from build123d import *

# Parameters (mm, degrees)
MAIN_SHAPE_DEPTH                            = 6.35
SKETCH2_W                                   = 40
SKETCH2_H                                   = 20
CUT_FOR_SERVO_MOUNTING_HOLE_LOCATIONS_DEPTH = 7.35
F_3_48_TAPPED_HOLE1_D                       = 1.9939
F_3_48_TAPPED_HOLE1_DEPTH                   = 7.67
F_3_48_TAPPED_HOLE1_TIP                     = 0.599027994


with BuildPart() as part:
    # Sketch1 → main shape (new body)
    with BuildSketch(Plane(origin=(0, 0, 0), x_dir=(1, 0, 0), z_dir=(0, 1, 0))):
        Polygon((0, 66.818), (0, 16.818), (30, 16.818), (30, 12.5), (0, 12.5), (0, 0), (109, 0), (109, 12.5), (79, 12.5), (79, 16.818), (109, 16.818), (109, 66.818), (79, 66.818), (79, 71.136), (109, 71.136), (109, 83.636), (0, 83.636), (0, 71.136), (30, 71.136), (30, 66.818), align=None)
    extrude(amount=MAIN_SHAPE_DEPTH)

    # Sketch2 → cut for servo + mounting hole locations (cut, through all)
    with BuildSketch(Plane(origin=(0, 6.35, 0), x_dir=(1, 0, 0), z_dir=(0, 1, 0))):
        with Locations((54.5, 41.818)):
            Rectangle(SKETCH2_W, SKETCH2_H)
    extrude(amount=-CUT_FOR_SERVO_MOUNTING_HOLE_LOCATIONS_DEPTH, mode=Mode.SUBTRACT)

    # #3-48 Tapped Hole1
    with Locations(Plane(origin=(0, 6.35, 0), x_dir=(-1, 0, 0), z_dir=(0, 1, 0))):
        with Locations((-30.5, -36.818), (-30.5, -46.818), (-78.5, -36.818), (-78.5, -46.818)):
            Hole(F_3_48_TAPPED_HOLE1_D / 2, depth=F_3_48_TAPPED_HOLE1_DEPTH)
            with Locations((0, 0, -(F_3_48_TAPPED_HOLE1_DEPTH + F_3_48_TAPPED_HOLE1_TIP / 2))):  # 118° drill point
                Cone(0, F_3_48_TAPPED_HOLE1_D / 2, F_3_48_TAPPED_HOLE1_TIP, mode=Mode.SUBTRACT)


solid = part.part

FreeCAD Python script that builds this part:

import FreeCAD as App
import Part
import Sketcher

doc = App.newDocument("Part")
params = doc.addObject("Spreadsheet::Sheet", "Params")
for row, (alias, value) in enumerate([
    ("sketch1_width", "30 mm"),
    ("sketch1_width2", "109 mm"),
    ("sketch1_height", "50 mm"),
    ("sketch1_height2", "12.5 mm"),
    ("pad1_length", "6.35 mm"),
    ("sketch2_width", "40 mm"),
    ("sketch2_height", "20 mm"),
    ("hole_diameter", "1.9939 mm"),
    ("hole_depth", "7.67 mm"),
], start=1):
    params.set(f"A{row}", alias)
    params.set(f"B{row}", "=" + value)
    params.setAlias(f"B{row}", alias)

body = doc.addObject("PartDesign::Body", "Body")

sketch1 = doc.addObject("Sketcher::SketchObject", "Sketch")
body.addObject(sketch1)
sketch1.AttachmentSupport = (doc.XZ_Plane, [""])
sketch1.MapMode = "FlatFace"
sketch1.addGeometry(Part.LineSegment(App.Vector(0, -66.8, 0), App.Vector(0, -16.8, 0)), False)
sketch1.addGeometry(Part.LineSegment(App.Vector(0, -16.8, 0), App.Vector(30, -16.8, 0)), False)
sketch1.addGeometry(Part.LineSegment(App.Vector(30, -16.8, 0), App.Vector(30, -12.5, 0)), False)
sketch1.addGeometry(Part.LineSegment(App.Vector(30, -12.5, 0), App.Vector(0, -12.5, 0)), False)
sketch1.addGeometry(Part.LineSegment(App.Vector(0, -12.5, 0), App.Vector(0, 0, 0)), False)
sketch1.addGeometry(Part.LineSegment(App.Vector(0, 0, 0), App.Vector(109, 0, 0)), False)
sketch1.addGeometry(Part.LineSegment(App.Vector(109, 0, 0), App.Vector(109, -12.5, 0)), False)
sketch1.addGeometry(Part.LineSegment(App.Vector(109, -12.5, 0), App.Vector(79, -12.5, 0)), False)
sketch1.addGeometry(Part.LineSegment(App.Vector(79, -12.5, 0), App.Vector(79, -16.8, 0)), False)
sketch1.addGeometry(Part.LineSegment(App.Vector(79, -16.8, 0), App.Vector(109, -16.8, 0)), False)
sketch1.addGeometry(Part.LineSegment(App.Vector(109, -16.8, 0), App.Vector(109, -66.8, 0)), False)
sketch1.addGeometry(Part.LineSegment(App.Vector(109, -66.8, 0), App.Vector(79, -66.8, 0)), False)
sketch1.addGeometry(Part.LineSegment(App.Vector(79, -66.8, 0), App.Vector(79, -71.1, 0)), False)
sketch1.addGeometry(Part.LineSegment(App.Vector(79, -71.1, 0), App.Vector(109, -71.1, 0)), False)
sketch1.addGeometry(Part.LineSegment(App.Vector(109, -71.1, 0), App.Vector(109, -83.6, 0)), False)
sketch1.addGeometry(Part.LineSegment(App.Vector(109, -83.6, 0), App.Vector(0, -83.6, 0)), False)
sketch1.addGeometry(Part.LineSegment(App.Vector(0, -83.6, 0), App.Vector(0, -71.1, 0)), False)
sketch1.addGeometry(Part.LineSegment(App.Vector(0, -71.1, 0), App.Vector(30, -71.1, 0)), False)
sketch1.addGeometry(Part.LineSegment(App.Vector(30, -71.1, 0), App.Vector(30, -66.8, 0)), False)
sketch1.addGeometry(Part.LineSegment(App.Vector(30, -66.8, 0), App.Vector(0, -66.8, 0)), False)
sketch1.addConstraint(Sketcher.Constraint("Coincident", 0, 2, 1, 1))
sketch1.addConstraint(Sketcher.Constraint("Coincident", 1, 2, 2, 1))
sketch1.addConstraint(Sketcher.Constraint("Coincident", 2, 2, 3, 1))
sketch1.addConstraint(Sketcher.Constraint("Coincident", 3, 2, 4, 1))
sketch1.addConstraint(Sketcher.Constraint("Coincident", 4, 2, 5, 1))
sketch1.addConstraint(Sketcher.Constraint("Coincident", 5, 2, 6, 1))
sketch1.addConstraint(Sketcher.Constraint("Coincident", 6, 2, 7, 1))
sketch1.addConstraint(Sketcher.Constraint("Coincident", 7, 2, 8, 1))
sketch1.addConstraint(Sketcher.Constraint("Coincident", 8, 2, 9, 1))
sketch1.addConstraint(Sketcher.Constraint("Coincident", 9, 2, 10, 1))
sketch1.addConstraint(Sketcher.Constraint("Coincident", 10, 2, 11, 1))
sketch1.addConstraint(Sketcher.Constraint("Coincident", 11, 2, 12, 1))
sketch1.addConstraint(Sketcher.Constraint("Coincident", 12, 2, 13, 1))
sketch1.addConstraint(Sketcher.Constraint("Coincident", 13, 2, 14, 1))
sketch1.addConstraint(Sketcher.Constraint("Coincident", 14, 2, 15, 1))
sketch1.addConstraint(Sketcher.Constraint("Coincident", 15, 2, 16, 1))
sketch1.addConstraint(Sketcher.Constraint("Coincident", 16, 2, 17, 1))
sketch1.addConstraint(Sketcher.Constraint("Coincident", 17, 2, 18, 1))
sketch1.addConstraint(Sketcher.Constraint("Coincident", 18, 2, 19, 1))
sketch1.addConstraint(Sketcher.Constraint("Coincident", 19, 2, 0, 1))
sketch1.addConstraint(Sketcher.Constraint("Vertical", 0))
sketch1.addConstraint(Sketcher.Constraint("Horizontal", 1))
sketch1.addConstraint(Sketcher.Constraint("Vertical", 2))
sketch1.addConstraint(Sketcher.Constraint("Horizontal", 3))
sketch1.addConstraint(Sketcher.Constraint("Vertical", 4))
sketch1.addConstraint(Sketcher.Constraint("Horizontal", 5))
sketch1.addConstraint(Sketcher.Constraint("Vertical", 6))
sketch1.addConstraint(Sketcher.Constraint("Horizontal", 7))
sketch1.addConstraint(Sketcher.Constraint("Vertical", 8))
sketch1.addConstraint(Sketcher.Constraint("Horizontal", 9))
sketch1.addConstraint(Sketcher.Constraint("Vertical", 10))
sketch1.addConstraint(Sketcher.Constraint("Horizontal", 11))
sketch1.addConstraint(Sketcher.Constraint("Vertical", 12))
sketch1.addConstraint(Sketcher.Constraint("Horizontal", 13))
sketch1.addConstraint(Sketcher.Constraint("Vertical", 14))
sketch1.addConstraint(Sketcher.Constraint("Horizontal", 15))
sketch1.addConstraint(Sketcher.Constraint("Vertical", 16))
sketch1.addConstraint(Sketcher.Constraint("Horizontal", 17))
sketch1.addConstraint(Sketcher.Constraint("Vertical", 18))
sketch1.addConstraint(Sketcher.Constraint("Horizontal", 19))
sketch1.addConstraint(Sketcher.Constraint("Coincident", 4, 2, -1, 1))
sketch1.addConstraint(Sketcher.Constraint("PointOnObject", 0, 2, -2))
sketch1.addConstraint(Sketcher.Constraint("PointOnObject", 15, 2, -2))
sketch1.addConstraint(Sketcher.Constraint("Horizontal", 3, 2, 6, 2))
sketch1.addConstraint(Sketcher.Constraint("Horizontal", 1, 2, 8, 2))
sketch1.addConstraint(Sketcher.Constraint("Horizontal", 13, 2, 16, 2))
sketch1.addConstraint(Sketcher.Constraint("Horizontal", 11, 2, 18, 2))
sketch1.addConstraint(Sketcher.Constraint("Vertical", 6, 2, 9, 2))
sketch1.addConstraint(Sketcher.Constraint("Vertical", 8, 2, 11, 2))
sketch1.addConstraint(Sketcher.Constraint("Vertical", 10, 2, 13, 2))
sketch1.addConstraint(Sketcher.Constraint("Vertical", 2, 2, 17, 2))
sketch1.addConstraint(Sketcher.Constraint("Equal", 3, 7))
sketch1.addConstraint(Sketcher.Constraint("Equal", 8, 12))
sketch1.addConstraint(Sketcher.Constraint("Equal", 6, 14))
sketch1.addConstraint(Sketcher.Constraint("DistanceX", 1, 1, 1, 2, 30.0))
sketch1.addConstraint(Sketcher.Constraint("DistanceX", 5, 1, 5, 2, 109.0))
sketch1.addConstraint(Sketcher.Constraint("DistanceY", 0, 1, 0, 2, 50.0))
sketch1.addConstraint(Sketcher.Constraint("DistanceY", 4, 1, 4, 2, 12.5))
sketch1.addConstraint(Sketcher.Constraint("DistanceY", 2, 1, 2, 2, 4.318))
sketch1.setExpression("Constraints[54]", "Params.sketch1_width")
sketch1.setExpression("Constraints[55]", "Params.sketch1_width2")
sketch1.setExpression("Constraints[56]", "Params.sketch1_height")
sketch1.setExpression("Constraints[57]", "Params.sketch1_height2")
pad1 = doc.addObject("PartDesign::Pad", "Pad")
body.addObject(pad1)
pad1.Profile = sketch1
pad1.setExpression("Length", "Params.pad1_length")
pad1.Reversed = True

sketch2 = doc.addObject("Sketcher::SketchObject", "Sketch001")
body.addObject(sketch2)
sketch2.AttachmentSupport = (doc.XZ_Plane, [""])
sketch2.MapMode = "FlatFace"
sketch2.AttachmentOffset = App.Placement(App.Vector(0, 0, -6.35), App.Rotation())
sketch2.addGeometry(Part.LineSegment(App.Vector(34, -52, 0), App.Vector(34, -32, 0)), False)
sketch2.addGeometry(Part.LineSegment(App.Vector(34, -32, 0), App.Vector(74, -32, 0)), False)
sketch2.addGeometry(Part.LineSegment(App.Vector(74, -32, 0), App.Vector(74, -52, 0)), False)
sketch2.addGeometry(Part.LineSegment(App.Vector(74, -52, 0), App.Vector(34, -52, 0)), False)
sketch2.addConstraint(Sketcher.Constraint("Coincident", 0, 2, 1, 1))
sketch2.addConstraint(Sketcher.Constraint("Coincident", 1, 2, 2, 1))
sketch2.addConstraint(Sketcher.Constraint("Coincident", 2, 2, 3, 1))
sketch2.addConstraint(Sketcher.Constraint("Coincident", 3, 2, 0, 1))
sketch2.addConstraint(Sketcher.Constraint("Vertical", 0))
sketch2.addConstraint(Sketcher.Constraint("Horizontal", 1))
sketch2.addConstraint(Sketcher.Constraint("Vertical", 2))
sketch2.addConstraint(Sketcher.Constraint("Horizontal", 3))
sketch2.addConstraint(Sketcher.Constraint("DistanceX", 1, 1, 1, 2, 40.0))
sketch2.addConstraint(Sketcher.Constraint("DistanceY", 0, 1, 0, 2, 20.0))
sketch2.addConstraint(Sketcher.Constraint("DistanceX", -1, 1, 0, 2, 34.5))
sketch2.addConstraint(Sketcher.Constraint("DistanceY", 0, 2, -1, 1, 31.818))
sketch2.setExpression("Constraints[8]", "Params.sketch2_width")
sketch2.setExpression("Constraints[9]", "Params.sketch2_height")
pocket1 = doc.addObject("PartDesign::Pocket", "Pocket")
body.addObject(pocket1)
pocket1.Profile = sketch2
pocket1.Type = "ThroughAll"
pocket1.Reversed = True

sketch3 = doc.addObject("Sketcher::SketchObject", "Sketch002")
body.addObject(sketch3)
sketch3.AttachmentSupport = (doc.XZ_Plane, [""])
sketch3.MapMode = "FlatFace"
sketch3.AttachmentOffset = App.Placement(App.Vector(0, 0, -6.35), App.Rotation())
sketch3.addGeometry(Part.Circle(App.Vector(30.5, -36.8, 0), App.Vector(0, 0, 1), 1), False)
sketch3.addGeometry(Part.Circle(App.Vector(30.5, -46.8, 0), App.Vector(0, 0, 1), 1), False)
sketch3.addGeometry(Part.Circle(App.Vector(78.5, -36.8, 0), App.Vector(0, 0, 1), 1), False)
sketch3.addGeometry(Part.Circle(App.Vector(78.5, -46.8, 0), App.Vector(0, 0, 1), 1), False)
sketch3.addConstraint(Sketcher.Constraint("Equal", 0, 1))
sketch3.addConstraint(Sketcher.Constraint("Equal", 1, 2))
sketch3.addConstraint(Sketcher.Constraint("Equal", 2, 3))
sketch3.addConstraint(Sketcher.Constraint("Horizontal", 0, 3, 2, 3))
sketch3.addConstraint(Sketcher.Constraint("Horizontal", 1, 3, 3, 3))
sketch3.addConstraint(Sketcher.Constraint("Vertical", 0, 3, 1, 3))
sketch3.addConstraint(Sketcher.Constraint("Vertical", 2, 3, 3, 3))
sketch3.addConstraint(Sketcher.Constraint("DistanceY", 1, 3, 0, 3, 10.0))
sketch3.addConstraint(Sketcher.Constraint("DistanceX", 0, 3, 2, 3, 48.0))
sketch3.addConstraint(Sketcher.Constraint("Diameter", 0, 1.9939))
sketch3.addConstraint(Sketcher.Constraint("DistanceX", -1, 1, 0, 3, 30.5))
sketch3.addConstraint(Sketcher.Constraint("DistanceY", 0, 3, -1, 1, 36.818))
doc.recompute()
hole = doc.addObject("PartDesign::Hole", "Hole")
body.addObject(hole)
hole.Profile = sketch3
hole.ThreadType = "None"
hole.setExpression("Diameter", "Params.hole_diameter")
hole.DepthType = "Dimension"
hole.setExpression("Depth", "Params.hole_depth")
hole.DrillPoint = "Angled"
hole.DrillPointAngle = 118
hole.Reversed = True

doc.recompute()
